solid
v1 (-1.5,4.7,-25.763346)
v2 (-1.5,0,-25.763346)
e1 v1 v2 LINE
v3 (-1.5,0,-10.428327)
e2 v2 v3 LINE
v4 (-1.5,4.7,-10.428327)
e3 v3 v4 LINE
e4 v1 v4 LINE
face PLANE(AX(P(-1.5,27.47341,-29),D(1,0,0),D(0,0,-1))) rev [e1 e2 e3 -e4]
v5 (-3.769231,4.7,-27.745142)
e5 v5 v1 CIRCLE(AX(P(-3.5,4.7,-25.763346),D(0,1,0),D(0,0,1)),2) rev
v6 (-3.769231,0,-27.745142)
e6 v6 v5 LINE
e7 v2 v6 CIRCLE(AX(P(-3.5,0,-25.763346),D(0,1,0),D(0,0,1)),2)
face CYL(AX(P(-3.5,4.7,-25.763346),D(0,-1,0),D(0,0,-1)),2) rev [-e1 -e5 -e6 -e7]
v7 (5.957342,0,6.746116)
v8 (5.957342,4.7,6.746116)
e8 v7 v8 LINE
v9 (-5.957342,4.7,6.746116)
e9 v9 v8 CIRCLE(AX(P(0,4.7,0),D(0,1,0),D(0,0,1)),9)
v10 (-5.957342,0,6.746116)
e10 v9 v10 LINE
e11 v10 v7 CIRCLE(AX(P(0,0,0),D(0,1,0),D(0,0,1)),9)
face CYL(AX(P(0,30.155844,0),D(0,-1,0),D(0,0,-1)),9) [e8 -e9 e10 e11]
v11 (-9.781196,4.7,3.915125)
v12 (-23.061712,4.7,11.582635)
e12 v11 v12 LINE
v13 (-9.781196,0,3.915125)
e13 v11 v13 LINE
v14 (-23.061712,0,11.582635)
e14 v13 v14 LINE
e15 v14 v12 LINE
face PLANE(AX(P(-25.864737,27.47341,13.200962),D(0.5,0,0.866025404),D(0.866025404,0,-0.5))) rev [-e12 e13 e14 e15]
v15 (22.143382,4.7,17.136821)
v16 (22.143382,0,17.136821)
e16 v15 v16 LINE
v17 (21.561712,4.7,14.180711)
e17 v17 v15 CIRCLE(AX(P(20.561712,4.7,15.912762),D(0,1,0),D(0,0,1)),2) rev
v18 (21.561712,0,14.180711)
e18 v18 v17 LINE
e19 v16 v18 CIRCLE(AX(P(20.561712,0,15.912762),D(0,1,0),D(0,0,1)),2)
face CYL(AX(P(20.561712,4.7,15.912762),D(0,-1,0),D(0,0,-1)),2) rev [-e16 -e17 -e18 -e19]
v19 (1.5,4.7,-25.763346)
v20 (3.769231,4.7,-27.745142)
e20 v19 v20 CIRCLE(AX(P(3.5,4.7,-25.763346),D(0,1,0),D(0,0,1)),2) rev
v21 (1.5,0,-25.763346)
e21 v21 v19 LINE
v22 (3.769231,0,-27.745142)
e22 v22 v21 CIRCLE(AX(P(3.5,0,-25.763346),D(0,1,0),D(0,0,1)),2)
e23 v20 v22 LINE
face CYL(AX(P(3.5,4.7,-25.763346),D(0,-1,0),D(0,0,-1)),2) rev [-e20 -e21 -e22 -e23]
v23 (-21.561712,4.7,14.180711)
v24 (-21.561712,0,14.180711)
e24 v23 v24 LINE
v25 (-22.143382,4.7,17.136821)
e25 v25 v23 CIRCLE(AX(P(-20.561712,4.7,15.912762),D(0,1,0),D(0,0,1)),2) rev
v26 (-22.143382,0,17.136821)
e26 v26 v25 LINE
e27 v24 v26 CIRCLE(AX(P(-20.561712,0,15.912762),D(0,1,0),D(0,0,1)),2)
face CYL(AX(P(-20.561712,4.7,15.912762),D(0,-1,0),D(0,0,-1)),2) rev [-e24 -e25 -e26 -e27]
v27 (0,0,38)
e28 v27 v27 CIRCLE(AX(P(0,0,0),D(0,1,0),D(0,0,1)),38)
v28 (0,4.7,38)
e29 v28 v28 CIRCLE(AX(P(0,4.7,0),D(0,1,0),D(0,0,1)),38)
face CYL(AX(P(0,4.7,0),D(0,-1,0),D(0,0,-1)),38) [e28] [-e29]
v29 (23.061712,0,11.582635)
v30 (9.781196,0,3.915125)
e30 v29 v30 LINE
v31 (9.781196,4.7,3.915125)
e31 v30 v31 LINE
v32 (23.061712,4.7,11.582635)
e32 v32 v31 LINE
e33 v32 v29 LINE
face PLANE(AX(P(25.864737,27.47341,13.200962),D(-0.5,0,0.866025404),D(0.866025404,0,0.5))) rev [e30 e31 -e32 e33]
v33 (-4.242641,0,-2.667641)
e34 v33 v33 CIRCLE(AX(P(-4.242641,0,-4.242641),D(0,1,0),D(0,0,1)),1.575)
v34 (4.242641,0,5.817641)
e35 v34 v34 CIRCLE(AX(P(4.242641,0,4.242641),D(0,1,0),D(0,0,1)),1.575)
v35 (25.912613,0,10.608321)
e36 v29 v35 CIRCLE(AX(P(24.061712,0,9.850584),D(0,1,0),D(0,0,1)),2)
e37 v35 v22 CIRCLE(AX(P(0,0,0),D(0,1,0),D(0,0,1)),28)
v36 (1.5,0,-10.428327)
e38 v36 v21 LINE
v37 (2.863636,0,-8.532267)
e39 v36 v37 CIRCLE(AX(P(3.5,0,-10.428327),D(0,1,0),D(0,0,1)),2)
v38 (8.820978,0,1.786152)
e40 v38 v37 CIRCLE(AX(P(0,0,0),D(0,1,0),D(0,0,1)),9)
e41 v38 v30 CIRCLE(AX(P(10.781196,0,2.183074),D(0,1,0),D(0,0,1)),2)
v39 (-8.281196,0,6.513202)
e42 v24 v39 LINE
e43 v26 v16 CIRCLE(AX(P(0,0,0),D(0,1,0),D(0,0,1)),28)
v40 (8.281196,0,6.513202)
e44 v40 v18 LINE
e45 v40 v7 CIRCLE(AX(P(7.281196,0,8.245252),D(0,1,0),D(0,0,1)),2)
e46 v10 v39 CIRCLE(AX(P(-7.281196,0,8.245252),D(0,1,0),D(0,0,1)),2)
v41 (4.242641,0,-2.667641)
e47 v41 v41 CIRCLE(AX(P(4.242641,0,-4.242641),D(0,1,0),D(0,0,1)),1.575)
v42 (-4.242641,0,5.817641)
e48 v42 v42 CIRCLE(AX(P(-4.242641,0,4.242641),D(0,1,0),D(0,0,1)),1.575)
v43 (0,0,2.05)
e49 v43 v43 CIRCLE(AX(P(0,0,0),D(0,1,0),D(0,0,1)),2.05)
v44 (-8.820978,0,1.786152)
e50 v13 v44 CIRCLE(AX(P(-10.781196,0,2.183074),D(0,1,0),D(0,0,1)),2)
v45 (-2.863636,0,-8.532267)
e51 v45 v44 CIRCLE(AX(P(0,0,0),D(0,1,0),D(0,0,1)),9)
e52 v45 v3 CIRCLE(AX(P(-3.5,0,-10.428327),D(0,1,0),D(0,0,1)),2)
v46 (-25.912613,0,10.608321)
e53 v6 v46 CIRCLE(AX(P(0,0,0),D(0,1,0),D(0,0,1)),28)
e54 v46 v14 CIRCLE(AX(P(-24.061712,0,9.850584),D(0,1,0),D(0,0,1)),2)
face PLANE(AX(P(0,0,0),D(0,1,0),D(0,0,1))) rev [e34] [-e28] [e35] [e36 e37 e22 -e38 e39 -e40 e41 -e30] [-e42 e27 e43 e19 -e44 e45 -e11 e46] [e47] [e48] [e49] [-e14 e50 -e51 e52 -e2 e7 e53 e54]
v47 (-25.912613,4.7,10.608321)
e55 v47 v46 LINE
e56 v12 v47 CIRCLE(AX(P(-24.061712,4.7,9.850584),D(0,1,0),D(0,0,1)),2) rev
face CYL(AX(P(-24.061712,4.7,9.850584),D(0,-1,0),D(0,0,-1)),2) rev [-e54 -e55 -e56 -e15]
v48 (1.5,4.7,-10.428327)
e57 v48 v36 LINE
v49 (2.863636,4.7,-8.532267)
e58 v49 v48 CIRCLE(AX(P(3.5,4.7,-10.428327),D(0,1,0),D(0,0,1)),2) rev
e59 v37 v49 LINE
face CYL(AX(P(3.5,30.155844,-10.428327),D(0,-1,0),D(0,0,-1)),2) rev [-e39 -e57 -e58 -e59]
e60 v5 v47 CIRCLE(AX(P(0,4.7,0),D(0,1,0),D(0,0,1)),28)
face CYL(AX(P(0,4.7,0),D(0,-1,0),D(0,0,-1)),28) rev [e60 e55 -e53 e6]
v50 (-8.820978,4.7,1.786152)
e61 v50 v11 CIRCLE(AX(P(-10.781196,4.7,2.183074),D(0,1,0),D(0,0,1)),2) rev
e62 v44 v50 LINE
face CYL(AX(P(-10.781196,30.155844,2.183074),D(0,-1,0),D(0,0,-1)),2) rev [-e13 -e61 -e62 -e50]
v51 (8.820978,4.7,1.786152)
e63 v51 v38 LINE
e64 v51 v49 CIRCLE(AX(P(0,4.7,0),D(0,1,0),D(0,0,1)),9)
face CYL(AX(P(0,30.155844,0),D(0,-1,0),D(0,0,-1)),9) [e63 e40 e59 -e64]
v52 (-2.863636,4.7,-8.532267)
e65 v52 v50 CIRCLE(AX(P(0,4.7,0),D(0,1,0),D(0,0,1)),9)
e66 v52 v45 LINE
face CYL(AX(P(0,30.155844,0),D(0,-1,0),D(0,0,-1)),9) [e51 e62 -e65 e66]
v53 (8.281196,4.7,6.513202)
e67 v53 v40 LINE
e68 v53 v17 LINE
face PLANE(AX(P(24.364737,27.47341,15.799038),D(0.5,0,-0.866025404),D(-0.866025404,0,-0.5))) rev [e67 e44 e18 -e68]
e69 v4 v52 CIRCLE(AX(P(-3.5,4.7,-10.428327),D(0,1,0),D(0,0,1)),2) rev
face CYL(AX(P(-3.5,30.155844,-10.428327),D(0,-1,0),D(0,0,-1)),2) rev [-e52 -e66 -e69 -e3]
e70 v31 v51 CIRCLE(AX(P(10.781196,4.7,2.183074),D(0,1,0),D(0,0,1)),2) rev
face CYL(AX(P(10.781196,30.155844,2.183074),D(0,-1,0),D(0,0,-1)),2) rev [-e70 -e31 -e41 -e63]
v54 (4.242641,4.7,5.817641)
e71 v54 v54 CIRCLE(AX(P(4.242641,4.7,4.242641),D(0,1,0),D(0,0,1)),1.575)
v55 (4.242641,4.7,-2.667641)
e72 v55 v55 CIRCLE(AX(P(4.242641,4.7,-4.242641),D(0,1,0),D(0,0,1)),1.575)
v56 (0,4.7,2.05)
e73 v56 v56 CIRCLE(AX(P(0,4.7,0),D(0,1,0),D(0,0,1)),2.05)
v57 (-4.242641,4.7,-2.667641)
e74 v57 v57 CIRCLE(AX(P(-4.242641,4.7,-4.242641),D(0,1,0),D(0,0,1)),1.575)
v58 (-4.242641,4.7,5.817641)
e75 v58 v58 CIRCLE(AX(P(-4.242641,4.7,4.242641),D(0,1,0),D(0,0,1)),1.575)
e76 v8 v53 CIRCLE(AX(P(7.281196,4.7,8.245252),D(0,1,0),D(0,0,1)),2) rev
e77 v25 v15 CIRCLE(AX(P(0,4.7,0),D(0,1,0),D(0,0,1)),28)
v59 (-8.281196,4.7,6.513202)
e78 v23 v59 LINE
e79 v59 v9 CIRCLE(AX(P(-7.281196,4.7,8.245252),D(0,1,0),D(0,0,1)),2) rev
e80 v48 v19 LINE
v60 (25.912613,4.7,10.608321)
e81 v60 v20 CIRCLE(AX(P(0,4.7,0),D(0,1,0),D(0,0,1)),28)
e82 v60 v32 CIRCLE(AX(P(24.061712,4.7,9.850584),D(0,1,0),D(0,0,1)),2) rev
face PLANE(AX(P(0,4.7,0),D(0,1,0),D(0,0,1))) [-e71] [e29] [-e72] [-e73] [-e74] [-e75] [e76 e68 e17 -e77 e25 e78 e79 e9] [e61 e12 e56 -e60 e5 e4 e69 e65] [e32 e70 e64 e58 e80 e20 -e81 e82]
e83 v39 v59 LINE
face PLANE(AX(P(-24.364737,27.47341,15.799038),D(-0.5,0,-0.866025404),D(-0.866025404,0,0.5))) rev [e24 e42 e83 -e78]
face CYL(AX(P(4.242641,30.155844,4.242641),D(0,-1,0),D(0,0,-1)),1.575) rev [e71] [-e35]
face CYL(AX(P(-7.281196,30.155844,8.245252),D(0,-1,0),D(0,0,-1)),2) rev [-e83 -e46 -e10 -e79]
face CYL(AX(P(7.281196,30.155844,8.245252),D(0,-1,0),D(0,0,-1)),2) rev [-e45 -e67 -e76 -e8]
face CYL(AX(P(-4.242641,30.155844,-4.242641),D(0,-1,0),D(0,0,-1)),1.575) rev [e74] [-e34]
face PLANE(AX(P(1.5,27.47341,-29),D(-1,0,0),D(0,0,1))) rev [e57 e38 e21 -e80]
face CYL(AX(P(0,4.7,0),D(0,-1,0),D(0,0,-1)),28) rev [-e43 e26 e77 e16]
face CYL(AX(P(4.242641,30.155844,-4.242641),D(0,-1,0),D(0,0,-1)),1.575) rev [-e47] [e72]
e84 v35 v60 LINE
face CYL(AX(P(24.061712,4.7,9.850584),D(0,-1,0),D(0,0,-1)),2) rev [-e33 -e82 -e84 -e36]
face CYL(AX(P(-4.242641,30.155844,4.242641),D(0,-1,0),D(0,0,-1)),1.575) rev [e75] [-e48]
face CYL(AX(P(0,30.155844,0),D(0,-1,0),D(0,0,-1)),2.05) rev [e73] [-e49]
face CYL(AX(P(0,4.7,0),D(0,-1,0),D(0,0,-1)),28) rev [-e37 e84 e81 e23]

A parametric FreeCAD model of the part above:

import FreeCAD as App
import Part
import Sketcher
Q = App.Units.Quantity


def edges_at(feature, points):
    """Names of the edges that pass closest to the given points."""
    edges = feature.Shape.Edges
    near = lambda p: min(range(len(edges)), key=lambda i: edges[i].distToShape(Part.Vertex(*p))[0])
    return sorted({f"Edge{near(p) + 1}" for p in points})


def add_polygon(sketch, points):
    """Adds a closed chain of lines whose ends are joined by coincident constraints."""
    first, n = sketch.GeometryCount, len(points)
    for a, b in zip(points, points[1:] + points[:1]):
        sketch.addGeometry(Part.LineSegment(App.Vector(*a, 0), App.Vector(*b, 0)), False)
    for i in range(n):
        sketch.addConstraint(Sketcher.Constraint("Coincident", first + i, 2, first + (i + 1) % n, 1))

doc = App.newDocument("Part")
body = doc.addObject("PartDesign::Body", "Body")

# Sketch on XZ plane
sketch1 = body.newObject("Sketcher::SketchObject", "Sketch")
sketch1.AttachmentSupport = (doc.getObject("XZ_Plane"), [""])
sketch1.MapMode = "FlatFace"
sketch1.addGeometry(Part.Circle(App.Vector(0, 0, 0), App.Vector(0, 0, 1), 38), False)
sketch1.addGeometry(Part.Circle(App.Vector(0, 0, 0), App.Vector(0, 0, 1), 28), False)
sketch1.addConstraint(Sketcher.Constraint("Coincident", 0, 3, -1, 1))
sketch1.addConstraint(Sketcher.Constraint("Coincident", 1, 3, -1, 1))
sketch1.addConstraint(Sketcher.Constraint("Diameter", 0, Q("76 mm")))
sketch1.addConstraint(Sketcher.Constraint("Diameter", 1, Q("56 mm")))
pad1 = body.newObject("PartDesign::Pad", "Pad")
pad1.Profile = sketch1
pad1.Length = 4.7
pad1.Reversed = True
body2 = doc.addObject("PartDesign::Body", "Body001")

# Sketch on XZ plane
sketch2 = body2.newObject("Sketcher::SketchObject", "Sketch001")
sketch2.AttachmentSupport = (doc.getObject("XZ_Plane001"), [""])
sketch2.MapMode = "FlatFace"
sketch2.addGeometry(Part.Circle(App.Vector(0, 0, 0), App.Vector(0, 0, 1), 9), False)
sketch2.addGeometry(Part.Circle(App.Vector(-4.242641, -4.242641, 0), App.Vector(0, 0, 1), 1.575), False)
sketch2.addGeometry(Part.Circle(App.Vector(0, 0, 0), App.Vector(0, 0, 1), 2.05), False)
sketch2.addGeometry(Part.Circle(App.Vector(-4.242641, 4.242641, 0), App.Vector(0, 0, 1), 1.575), False)
sketch2.addGeometry(Part.Circle(App.Vector(4.242641, -4.242641, 0), App.Vector(0, 0, 1), 1.575), False)
sketch2.addGeometry(Part.Circle(App.Vector(4.242641, 4.242641, 0), App.Vector(0, 0, 1), 1.575), False)
sketch2.addConstraint(Sketcher.Constraint("Coincident", 0, 3, -1, 1))
sketch2.addConstraint(Sketcher.Constraint("Coincident", 2, 3, -1, 1))
sketch2.addConstraint(Sketcher.Constraint("Equal", 1, 3))
sketch2.addConstraint(Sketcher.Constraint("Equal", 3, 4))
sketch2.addConstraint(Sketcher.Constraint("Equal", 4, 5))
sketch2.addConstraint(Sketcher.Constraint("Symmetric", 3, 3, 4, 3, -1, 1))
sketch2.addConstraint(Sketcher.Constraint("Symmetric", 1, 3, 5, 3, -1, 1))
sketch2.addConstraint(Sketcher.Constraint("Symmetric", 1, 3, 4, 3, -2))
sketch2.addConstraint(Sketcher.Constraint("Diameter", 0, Q("18 mm")))
sketch2.addConstraint(Sketcher.Constraint("Diameter", 2, Q("4.1 mm")))
sketch2.addConstraint(Sketcher.Constraint("Diameter", 1, Q("3.15 mm")))
sketch2.addConstraint(Sketcher.Constraint("DistanceX", 1, 3, -1, 1, Q("4.242641 mm")))
sketch2.addConstraint(Sketcher.Constraint("DistanceY", 1, 3, -1, 1, Q("4.242641 mm")))
pad2 = body2.newObject("PartDesign::Pad", "Pad001")
pad2.Profile = sketch2
pad2.Length = 4.7
pad2.Reversed = True
body.AllowCompound = True
doc.recompute()

boolean = body.newObject("PartDesign::Boolean", "Boolean")
boolean.Type = "Fuse"
boolean.addObjects([body2])

# Sketch on XZ plane
sketch3 = body.newObject("Sketcher::SketchObject", "Sketch002")
sketch3.AttachmentSupport = (doc.getObject("XZ_Plane"), [""])
sketch3.MapMode = "FlatFace"
add_polygon(sketch3, [(-1.5, -29), (-1.5, -8.87412), (1.5, -8.87412), (1.5, -29)])  # lines 0-3
add_polygon(sketch3, [(24.364737, 15.799038), (25.864737, 13.200962), (8.435213, 3.138022), (6.935213, 5.736098)])  # lines 4-7
add_polygon(sketch3, [(-25.864737, 13.200962), (-24.364737, 15.799038), (-6.935213, 5.736098), (-8.435213, 3.138022)])  # lines 8-11
sketch3.addConstraint(Sketcher.Constraint("Vertical", 0))
sketch3.addConstraint(Sketcher.Constraint("Horizontal", 1))
sketch3.addConstraint(Sketcher.Constraint("Vertical", 2))
sketch3.addConstraint(Sketcher.Constraint("Horizontal", 3))
sketch3.addConstraint(Sketcher.Constraint("Symmetric", 7, 2, 8, 2, -2))
sketch3.addConstraint(Sketcher.Constraint("Symmetric", 6, 2, 9, 2, -2))
sketch3.addConstraint(Sketcher.Constraint("Symmetric", 5, 2, 10, 2, -2))
sketch3.addConstraint(Sketcher.Constraint("Symmetric", 4, 2, 11, 2, -2))
sketch3.addConstraint(Sketcher.Constraint("Perpendicular", 4, 5))
sketch3.addConstraint(Sketcher.Constraint("Perpendicular", 5, 6))
sketch3.addConstraint(Sketcher.Constraint("Perpendicular", 6, 7))
sketch3.addConstraint(Sketcher.Constraint("DistanceX", 1, 1, 1, 2, Q("3 mm")))
sketch3.addConstraint(Sketcher.Constraint("Angle", 4, Q("-60 deg")))
sketch3.addConstraint(Sketcher.Constraint("Distance", 4, Q("3 mm")))
sketch3.addConstraint(Sketcher.Constraint("DistanceY", 2, 2, -1, 1, Q("29 mm")))
sketch3.addConstraint(Sketcher.Constraint("DistanceX", 0, 2, -1, 1, Q("1.5 mm")))
sketch3.addConstraint(Sketcher.Constraint("DistanceY", 0, 1, 0, 2, Q("20.12588 mm")))
sketch3.addConstraint(Sketcher.Constraint("Distance", 5, Q("20.12588 mm")))
sketch3.addConstraint(Sketcher.Constraint("DistanceY", -1, 1, 4, 2, Q("13.200962 mm")))
sketch3.addConstraint(Sketcher.Constraint("DistanceX", 8, 2, 6, 2, Q("31.29995 mm")))
pad3 = body.newObject("PartDesign::Pad", "Pad002")
pad3.Profile = sketch3
pad3.Length = 4.7
pad3.Reversed = True
doc.recompute()

fillet = body.newObject("PartDesign::Fillet", "Fillet")
fillet.Base = (pad3, edges_at(pad3, [
    (1.5, 2.35, -27.96),
    (-1.5, 2.35, -27.96),
    (24.964, 2.35, 12.681),
    (23.464, 2.35, 15.279),
    (-23.464, 2.35, 15.279),
    (-24.964, 2.35, 12.681),
]))
fillet.Radius = 2
doc.recompute()

fillet2 = body.newObject("PartDesign::Fillet", "Fillet001")
fillet2.Base = (fillet, edges_at(fillet, [
    (-1.5, 2.35, -8.874),
    (1.5, 2.35, -8.874),
    (8.435, 2.35, 3.138),
    (6.935, 2.35, 5.736),
    (-6.935, 2.35, 5.736),
    (-8.435, 2.35, 3.138),
]))
fillet2.Radius = 2

doc.recompute()
